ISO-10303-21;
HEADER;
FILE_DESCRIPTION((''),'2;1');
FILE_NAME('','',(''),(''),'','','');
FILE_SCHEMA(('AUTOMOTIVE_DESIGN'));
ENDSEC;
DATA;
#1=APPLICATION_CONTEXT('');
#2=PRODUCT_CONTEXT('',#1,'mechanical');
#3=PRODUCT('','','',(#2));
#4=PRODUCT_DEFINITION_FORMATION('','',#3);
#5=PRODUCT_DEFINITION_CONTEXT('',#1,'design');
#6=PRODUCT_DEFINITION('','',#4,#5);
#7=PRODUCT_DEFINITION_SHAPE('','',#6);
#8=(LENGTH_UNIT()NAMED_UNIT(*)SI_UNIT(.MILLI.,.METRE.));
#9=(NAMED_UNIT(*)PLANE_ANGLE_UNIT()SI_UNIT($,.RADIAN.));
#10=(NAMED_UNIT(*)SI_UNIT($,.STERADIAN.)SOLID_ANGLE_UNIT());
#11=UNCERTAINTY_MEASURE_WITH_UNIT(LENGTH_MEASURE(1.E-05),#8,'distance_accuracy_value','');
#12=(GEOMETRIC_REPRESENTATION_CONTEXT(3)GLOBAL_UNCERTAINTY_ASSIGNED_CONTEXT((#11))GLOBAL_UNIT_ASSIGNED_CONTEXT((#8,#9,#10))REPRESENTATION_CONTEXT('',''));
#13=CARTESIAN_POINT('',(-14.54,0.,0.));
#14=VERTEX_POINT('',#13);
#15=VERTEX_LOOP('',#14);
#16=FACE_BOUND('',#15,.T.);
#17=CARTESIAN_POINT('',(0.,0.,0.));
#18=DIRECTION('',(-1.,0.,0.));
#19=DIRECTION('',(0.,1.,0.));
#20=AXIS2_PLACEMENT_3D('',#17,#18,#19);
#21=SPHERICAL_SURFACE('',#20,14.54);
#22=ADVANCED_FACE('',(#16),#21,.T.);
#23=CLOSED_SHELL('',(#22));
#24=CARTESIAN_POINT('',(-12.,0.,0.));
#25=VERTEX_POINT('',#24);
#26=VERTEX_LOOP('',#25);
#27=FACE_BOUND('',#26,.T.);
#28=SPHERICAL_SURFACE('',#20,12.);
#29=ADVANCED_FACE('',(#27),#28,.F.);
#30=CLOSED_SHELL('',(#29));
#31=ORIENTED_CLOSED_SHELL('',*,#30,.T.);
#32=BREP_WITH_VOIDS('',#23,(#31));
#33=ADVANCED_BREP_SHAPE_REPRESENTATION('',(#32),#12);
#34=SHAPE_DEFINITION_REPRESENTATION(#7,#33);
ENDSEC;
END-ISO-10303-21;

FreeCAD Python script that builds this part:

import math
import FreeCAD as App
import Part
import Sketcher
from FreeCAD import Vector

doc = App.newDocument("Part")
body = doc.addObject("PartDesign::Body", "Body")

sketch1 = doc.addObject("Sketcher::SketchObject", "Sketch")
body.addObject(sketch1)
sketch1.AttachmentSupport = (doc.XY_Plane, [""])
sketch1.MapMode = "FlatFace"
sketch1.addGeometry([
    Part.LineSegment(Vector(-12, 0, 0), Vector(-14.5, 0, 0)),
    Part.ArcOfCircle(Part.Circle(Vector(0, 0, 0), Vector(0, 0, 1), 14.5), math.radians(180), math.radians(360)),
    Part.LineSegment(Vector(14.5, 0, 0), Vector(12, 0, 0)),
    Part.ArcOfCircle(Part.Circle(Vector(0, 0, 0), Vector(0, 0, 1), 12), math.radians(180), math.radians(360)),
], False)
sketch1.addConstraint([
    Sketcher.Constraint("Coincident", 0, 2, 1, 1),
    Sketcher.Constraint("Coincident", 1, 2, 2, 1),
    Sketcher.Constraint("Coincident", 2, 2, 3, 2),
    Sketcher.Constraint("Coincident", 3, 1, 0, 1),
    Sketcher.Constraint("Horizontal", 0),
    Sketcher.Constraint("Horizontal", 2),
    Sketcher.Constraint("Coincident", 1, 3, -1, 1),
    Sketcher.Constraint("Coincident", 3, 3, -1, 1),
    Sketcher.Constraint("PointOnObject", 0, 2, -1),
    Sketcher.Constraint("PointOnObject", 1, 2, -1),
    Sketcher.Constraint("Radius", 3, 12.0),
    Sketcher.Constraint("Radius", 1, 14.54),
])
revolution = doc.addObject("PartDesign::Revolution", "Revolution")
body.addObject(revolution)
revolution.Profile = sketch1
revolution.ReferenceAxis = (sketch1, ["H_Axis"])
revolution.Angle = 360

doc.recompute()
